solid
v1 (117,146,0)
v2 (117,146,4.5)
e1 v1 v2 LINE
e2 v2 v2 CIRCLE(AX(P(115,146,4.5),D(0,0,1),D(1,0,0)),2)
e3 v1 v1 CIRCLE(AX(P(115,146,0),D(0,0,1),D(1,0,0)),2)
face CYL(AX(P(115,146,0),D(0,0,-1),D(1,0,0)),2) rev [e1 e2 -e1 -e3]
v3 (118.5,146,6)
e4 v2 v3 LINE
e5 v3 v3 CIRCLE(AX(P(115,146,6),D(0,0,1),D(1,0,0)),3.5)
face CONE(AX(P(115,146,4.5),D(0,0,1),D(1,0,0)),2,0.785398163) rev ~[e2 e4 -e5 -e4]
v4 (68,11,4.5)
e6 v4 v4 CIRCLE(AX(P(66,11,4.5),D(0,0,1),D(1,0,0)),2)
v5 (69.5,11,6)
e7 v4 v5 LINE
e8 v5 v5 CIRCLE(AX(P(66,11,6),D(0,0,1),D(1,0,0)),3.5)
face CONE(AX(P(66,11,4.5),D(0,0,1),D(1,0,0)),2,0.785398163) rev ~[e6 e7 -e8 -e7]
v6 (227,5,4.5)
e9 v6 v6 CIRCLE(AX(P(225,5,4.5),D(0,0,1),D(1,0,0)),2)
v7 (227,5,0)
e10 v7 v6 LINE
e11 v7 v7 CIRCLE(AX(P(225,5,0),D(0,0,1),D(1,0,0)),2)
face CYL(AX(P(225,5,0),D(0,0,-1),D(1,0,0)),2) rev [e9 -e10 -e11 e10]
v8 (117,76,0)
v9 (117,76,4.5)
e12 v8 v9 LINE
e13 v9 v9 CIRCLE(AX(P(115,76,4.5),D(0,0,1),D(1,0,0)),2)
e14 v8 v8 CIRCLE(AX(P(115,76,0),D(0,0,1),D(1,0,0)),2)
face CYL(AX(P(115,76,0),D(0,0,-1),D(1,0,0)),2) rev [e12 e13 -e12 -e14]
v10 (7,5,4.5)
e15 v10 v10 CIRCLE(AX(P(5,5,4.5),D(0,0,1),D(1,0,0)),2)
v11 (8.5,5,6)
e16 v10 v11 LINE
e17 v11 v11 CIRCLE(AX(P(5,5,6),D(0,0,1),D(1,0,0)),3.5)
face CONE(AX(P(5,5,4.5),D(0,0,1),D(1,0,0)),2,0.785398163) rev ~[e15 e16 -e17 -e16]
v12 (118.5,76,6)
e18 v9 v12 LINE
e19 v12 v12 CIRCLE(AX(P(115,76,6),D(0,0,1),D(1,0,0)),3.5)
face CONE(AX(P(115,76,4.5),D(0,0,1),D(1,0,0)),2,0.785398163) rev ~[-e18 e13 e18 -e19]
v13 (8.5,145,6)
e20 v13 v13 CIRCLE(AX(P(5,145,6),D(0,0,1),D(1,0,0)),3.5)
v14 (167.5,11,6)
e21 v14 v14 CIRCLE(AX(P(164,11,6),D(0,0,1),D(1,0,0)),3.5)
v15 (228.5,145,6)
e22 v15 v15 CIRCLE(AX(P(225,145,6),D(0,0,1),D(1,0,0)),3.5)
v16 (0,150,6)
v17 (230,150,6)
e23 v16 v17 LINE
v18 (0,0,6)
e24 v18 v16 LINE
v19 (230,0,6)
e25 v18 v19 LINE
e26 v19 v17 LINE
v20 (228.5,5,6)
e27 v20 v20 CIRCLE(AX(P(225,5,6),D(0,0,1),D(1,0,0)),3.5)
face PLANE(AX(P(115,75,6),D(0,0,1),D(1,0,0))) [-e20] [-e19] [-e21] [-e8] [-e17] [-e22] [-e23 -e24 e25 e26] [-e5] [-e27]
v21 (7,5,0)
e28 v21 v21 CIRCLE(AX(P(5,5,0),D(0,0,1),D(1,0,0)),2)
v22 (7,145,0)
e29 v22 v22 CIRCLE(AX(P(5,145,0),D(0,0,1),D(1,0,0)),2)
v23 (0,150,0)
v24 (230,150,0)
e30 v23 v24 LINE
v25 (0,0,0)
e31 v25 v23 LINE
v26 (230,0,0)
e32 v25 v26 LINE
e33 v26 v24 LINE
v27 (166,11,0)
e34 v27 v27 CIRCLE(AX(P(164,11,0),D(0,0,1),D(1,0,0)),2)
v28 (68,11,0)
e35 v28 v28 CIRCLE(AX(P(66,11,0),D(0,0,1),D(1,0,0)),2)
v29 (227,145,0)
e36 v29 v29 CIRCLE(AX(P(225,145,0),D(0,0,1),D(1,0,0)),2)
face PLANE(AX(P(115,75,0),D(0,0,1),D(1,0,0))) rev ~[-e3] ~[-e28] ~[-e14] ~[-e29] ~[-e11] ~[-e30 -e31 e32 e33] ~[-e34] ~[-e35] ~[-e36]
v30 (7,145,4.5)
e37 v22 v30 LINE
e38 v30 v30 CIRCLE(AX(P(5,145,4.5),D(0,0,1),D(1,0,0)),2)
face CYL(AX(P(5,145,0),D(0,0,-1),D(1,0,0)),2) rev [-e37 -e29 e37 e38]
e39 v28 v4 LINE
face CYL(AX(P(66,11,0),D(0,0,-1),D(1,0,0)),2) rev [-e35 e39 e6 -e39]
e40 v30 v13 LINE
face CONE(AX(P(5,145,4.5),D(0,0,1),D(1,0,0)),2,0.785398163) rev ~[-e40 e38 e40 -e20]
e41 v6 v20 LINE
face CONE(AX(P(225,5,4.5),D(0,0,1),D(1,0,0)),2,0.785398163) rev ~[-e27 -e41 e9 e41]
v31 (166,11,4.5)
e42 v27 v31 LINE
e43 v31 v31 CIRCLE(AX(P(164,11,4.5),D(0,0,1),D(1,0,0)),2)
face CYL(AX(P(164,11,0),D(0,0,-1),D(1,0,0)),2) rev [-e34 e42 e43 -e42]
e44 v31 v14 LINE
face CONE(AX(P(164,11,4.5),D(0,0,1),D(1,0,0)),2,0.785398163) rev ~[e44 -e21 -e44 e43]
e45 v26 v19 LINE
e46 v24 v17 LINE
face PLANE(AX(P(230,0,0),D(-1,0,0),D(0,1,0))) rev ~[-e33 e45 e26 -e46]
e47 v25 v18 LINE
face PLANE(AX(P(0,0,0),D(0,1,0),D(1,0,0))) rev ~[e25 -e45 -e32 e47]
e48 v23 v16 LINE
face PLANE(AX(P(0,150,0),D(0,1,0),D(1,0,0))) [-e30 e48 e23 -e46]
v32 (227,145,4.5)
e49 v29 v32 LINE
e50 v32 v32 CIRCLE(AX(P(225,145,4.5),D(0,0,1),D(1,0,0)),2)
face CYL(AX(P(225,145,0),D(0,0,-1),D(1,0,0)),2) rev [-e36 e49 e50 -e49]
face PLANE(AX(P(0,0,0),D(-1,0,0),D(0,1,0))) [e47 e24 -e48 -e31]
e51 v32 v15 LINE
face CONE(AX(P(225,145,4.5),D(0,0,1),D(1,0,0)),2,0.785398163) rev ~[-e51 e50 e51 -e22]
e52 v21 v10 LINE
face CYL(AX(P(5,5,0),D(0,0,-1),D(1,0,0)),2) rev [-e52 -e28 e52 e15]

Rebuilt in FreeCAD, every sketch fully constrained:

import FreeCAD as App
import Part
import Sketcher

V = App.Vector
Q = App.Units.Quantity


def edges_at(feature, points):
    """Names of the edges that pass closest to the given points."""
    edges = feature.Shape.Edges
    near = lambda p: min(range(len(edges)), key=lambda i: edges[i].distToShape(Part.Vertex(*p))[0])
    return sorted({f"Edge{near(p) + 1}" for p in points})

doc = App.newDocument("Part")
params = doc.addObject("Spreadsheet::Sheet", "Params")
for row, (alias, value) in enumerate([
    ("sketch1_diameter", "4 mm"),
    ("sketch1_width", "230 mm"),
    ("sketch1_height", "150 mm"),
    ("pad1_length", "6 mm"),
    ("chamfer_size", "1.5 mm"),
], start=1):
    params.set(f"A{row}", alias)
    params.set(f"B{row}", "=" + value)
    params.setAlias(f"B{row}", alias)

body = doc.addObject("PartDesign::Body", "Body")

# Sketch on XY plane
sketch1 = body.newObject("Sketcher::SketchObject", "Sketch")
sketch1.AttachmentSupport = (doc.getObject("XY_Plane"), [""])
sketch1.MapMode = "FlatFace"
sketch1.addGeometry([
    Part.LineSegment(V(0, 150, 0), V(0, 0, 0)),  # 0
    Part.LineSegment(V(0, 0, 0), V(230, 0, 0)),  # 1
    Part.LineSegment(V(230, 0, 0), V(230, 150, 0)),  # 2
    Part.LineSegment(V(230, 150, 0), V(0, 150, 0)),  # 3
    Part.Circle(V(5, 5, 0), V(0, 0, 1), 2),  # 4
    Part.Circle(V(66, 11, 0), V(0, 0, 1), 2),  # 5
    Part.Circle(V(164, 11, 0), V(0, 0, 1), 2),  # 6
    Part.Circle(V(225, 5, 0), V(0, 0, 1), 2),  # 7
    Part.Circle(V(5, 145, 0), V(0, 0, 1), 2),  # 8
    Part.Circle(V(115, 76, 0), V(0, 0, 1), 2),  # 9
    Part.Circle(V(115, 146, 0), V(0, 0, 1), 2),  # 10
    Part.Circle(V(225, 145, 0), V(0, 0, 1), 2),  # 11
], False)
sketch1.addConstraint([
    Sketcher.Constraint("Coincident", 0, 2, 1, 1),
    Sketcher.Constraint("Coincident", 1, 2, 2, 1),
    Sketcher.Constraint("Coincident", 2, 2, 3, 1),
    Sketcher.Constraint("Coincident", 3, 2, 0, 1),
    Sketcher.Constraint("Vertical", 0),
    Sketcher.Constraint("Horizontal", 1),
    Sketcher.Constraint("Vertical", 2),
    Sketcher.Constraint("Horizontal", 3),
    Sketcher.Constraint("Coincident", 0, 2, -1, 1),
    Sketcher.Constraint("Equal", 4, 5),
    Sketcher.Constraint("Equal", 5, 6),
    Sketcher.Constraint("Equal", 6, 7),
    Sketcher.Constraint("Equal", 7, 8),
    Sketcher.Constraint("Equal", 8, 9),
    Sketcher.Constraint("Equal", 9, 10),
    Sketcher.Constraint("Equal", 10, 11),
    Sketcher.Constraint("Horizontal", 5, 3, 6, 3),
    Sketcher.Constraint("Horizontal", 4, 3, 7, 3),
    Sketcher.Constraint("Horizontal", 8, 3, 11, 3),
    Sketcher.Constraint("Vertical", 4, 3, 8, 3),
    Sketcher.Constraint("Vertical", 9, 3, 10, 3),
    Sketcher.Constraint("Vertical", 7, 3, 11, 3),
    Sketcher.Constraint("Diameter", 4, Q("4 mm")),
    Sketcher.Constraint("DistanceX", 1, 1, 1, 2, Q("230 mm")),
    Sketcher.Constraint("DistanceY", 0, 2, 0, 1, Q("150 mm")),
    Sketcher.Constraint("DistanceX", -1, 1, 4, 3, Q("5 mm")),
    Sketcher.Constraint("DistanceY", -1, 1, 4, 3, Q("5 mm")),
    Sketcher.Constraint("DistanceX", -1, 1, 5, 3, Q("66 mm")),
    Sketcher.Constraint("DistanceY", -1, 1, 5, 3, Q("11 mm")),
    Sketcher.Constraint("DistanceX", -1, 1, 6, 3, Q("164 mm")),
    Sketcher.Constraint("DistanceX", -1, 1, 7, 3, Q("225 mm")),
    Sketcher.Constraint("DistanceY", -1, 1, 8, 3, Q("145 mm")),
    Sketcher.Constraint("DistanceX", -1, 1, 9, 3, Q("115 mm")),
    Sketcher.Constraint("DistanceY", -1, 1, 9, 3, Q("76 mm")),
    Sketcher.Constraint("DistanceY", -1, 1, 10, 3, Q("146 mm")),
])
sketch1.setExpression("Constraints[22]", "Params.sketch1_diameter")
sketch1.setExpression("Constraints[23]", "Params.sketch1_width")
sketch1.setExpression("Constraints[24]", "Params.sketch1_height")
pad1 = body.newObject("PartDesign::Pad", "Pad")
pad1.Profile = sketch1
pad1.setExpression("Length", "Params.pad1_length")
doc.recompute()

chamfer = body.newObject("PartDesign::Chamfer", "Chamfer")
chamfer.Base = (pad1, edges_at(pad1, [
    (3, 145, 6),
    (3, 5, 6),
    (64, 11, 6),
    (113, 76, 6),
    (113, 146, 6),
    (162, 11, 6),
    (223, 5, 6),
    (223, 145, 6),
]))
chamfer.setExpression("Size", "Params.chamfer_size")

doc.recompute()
